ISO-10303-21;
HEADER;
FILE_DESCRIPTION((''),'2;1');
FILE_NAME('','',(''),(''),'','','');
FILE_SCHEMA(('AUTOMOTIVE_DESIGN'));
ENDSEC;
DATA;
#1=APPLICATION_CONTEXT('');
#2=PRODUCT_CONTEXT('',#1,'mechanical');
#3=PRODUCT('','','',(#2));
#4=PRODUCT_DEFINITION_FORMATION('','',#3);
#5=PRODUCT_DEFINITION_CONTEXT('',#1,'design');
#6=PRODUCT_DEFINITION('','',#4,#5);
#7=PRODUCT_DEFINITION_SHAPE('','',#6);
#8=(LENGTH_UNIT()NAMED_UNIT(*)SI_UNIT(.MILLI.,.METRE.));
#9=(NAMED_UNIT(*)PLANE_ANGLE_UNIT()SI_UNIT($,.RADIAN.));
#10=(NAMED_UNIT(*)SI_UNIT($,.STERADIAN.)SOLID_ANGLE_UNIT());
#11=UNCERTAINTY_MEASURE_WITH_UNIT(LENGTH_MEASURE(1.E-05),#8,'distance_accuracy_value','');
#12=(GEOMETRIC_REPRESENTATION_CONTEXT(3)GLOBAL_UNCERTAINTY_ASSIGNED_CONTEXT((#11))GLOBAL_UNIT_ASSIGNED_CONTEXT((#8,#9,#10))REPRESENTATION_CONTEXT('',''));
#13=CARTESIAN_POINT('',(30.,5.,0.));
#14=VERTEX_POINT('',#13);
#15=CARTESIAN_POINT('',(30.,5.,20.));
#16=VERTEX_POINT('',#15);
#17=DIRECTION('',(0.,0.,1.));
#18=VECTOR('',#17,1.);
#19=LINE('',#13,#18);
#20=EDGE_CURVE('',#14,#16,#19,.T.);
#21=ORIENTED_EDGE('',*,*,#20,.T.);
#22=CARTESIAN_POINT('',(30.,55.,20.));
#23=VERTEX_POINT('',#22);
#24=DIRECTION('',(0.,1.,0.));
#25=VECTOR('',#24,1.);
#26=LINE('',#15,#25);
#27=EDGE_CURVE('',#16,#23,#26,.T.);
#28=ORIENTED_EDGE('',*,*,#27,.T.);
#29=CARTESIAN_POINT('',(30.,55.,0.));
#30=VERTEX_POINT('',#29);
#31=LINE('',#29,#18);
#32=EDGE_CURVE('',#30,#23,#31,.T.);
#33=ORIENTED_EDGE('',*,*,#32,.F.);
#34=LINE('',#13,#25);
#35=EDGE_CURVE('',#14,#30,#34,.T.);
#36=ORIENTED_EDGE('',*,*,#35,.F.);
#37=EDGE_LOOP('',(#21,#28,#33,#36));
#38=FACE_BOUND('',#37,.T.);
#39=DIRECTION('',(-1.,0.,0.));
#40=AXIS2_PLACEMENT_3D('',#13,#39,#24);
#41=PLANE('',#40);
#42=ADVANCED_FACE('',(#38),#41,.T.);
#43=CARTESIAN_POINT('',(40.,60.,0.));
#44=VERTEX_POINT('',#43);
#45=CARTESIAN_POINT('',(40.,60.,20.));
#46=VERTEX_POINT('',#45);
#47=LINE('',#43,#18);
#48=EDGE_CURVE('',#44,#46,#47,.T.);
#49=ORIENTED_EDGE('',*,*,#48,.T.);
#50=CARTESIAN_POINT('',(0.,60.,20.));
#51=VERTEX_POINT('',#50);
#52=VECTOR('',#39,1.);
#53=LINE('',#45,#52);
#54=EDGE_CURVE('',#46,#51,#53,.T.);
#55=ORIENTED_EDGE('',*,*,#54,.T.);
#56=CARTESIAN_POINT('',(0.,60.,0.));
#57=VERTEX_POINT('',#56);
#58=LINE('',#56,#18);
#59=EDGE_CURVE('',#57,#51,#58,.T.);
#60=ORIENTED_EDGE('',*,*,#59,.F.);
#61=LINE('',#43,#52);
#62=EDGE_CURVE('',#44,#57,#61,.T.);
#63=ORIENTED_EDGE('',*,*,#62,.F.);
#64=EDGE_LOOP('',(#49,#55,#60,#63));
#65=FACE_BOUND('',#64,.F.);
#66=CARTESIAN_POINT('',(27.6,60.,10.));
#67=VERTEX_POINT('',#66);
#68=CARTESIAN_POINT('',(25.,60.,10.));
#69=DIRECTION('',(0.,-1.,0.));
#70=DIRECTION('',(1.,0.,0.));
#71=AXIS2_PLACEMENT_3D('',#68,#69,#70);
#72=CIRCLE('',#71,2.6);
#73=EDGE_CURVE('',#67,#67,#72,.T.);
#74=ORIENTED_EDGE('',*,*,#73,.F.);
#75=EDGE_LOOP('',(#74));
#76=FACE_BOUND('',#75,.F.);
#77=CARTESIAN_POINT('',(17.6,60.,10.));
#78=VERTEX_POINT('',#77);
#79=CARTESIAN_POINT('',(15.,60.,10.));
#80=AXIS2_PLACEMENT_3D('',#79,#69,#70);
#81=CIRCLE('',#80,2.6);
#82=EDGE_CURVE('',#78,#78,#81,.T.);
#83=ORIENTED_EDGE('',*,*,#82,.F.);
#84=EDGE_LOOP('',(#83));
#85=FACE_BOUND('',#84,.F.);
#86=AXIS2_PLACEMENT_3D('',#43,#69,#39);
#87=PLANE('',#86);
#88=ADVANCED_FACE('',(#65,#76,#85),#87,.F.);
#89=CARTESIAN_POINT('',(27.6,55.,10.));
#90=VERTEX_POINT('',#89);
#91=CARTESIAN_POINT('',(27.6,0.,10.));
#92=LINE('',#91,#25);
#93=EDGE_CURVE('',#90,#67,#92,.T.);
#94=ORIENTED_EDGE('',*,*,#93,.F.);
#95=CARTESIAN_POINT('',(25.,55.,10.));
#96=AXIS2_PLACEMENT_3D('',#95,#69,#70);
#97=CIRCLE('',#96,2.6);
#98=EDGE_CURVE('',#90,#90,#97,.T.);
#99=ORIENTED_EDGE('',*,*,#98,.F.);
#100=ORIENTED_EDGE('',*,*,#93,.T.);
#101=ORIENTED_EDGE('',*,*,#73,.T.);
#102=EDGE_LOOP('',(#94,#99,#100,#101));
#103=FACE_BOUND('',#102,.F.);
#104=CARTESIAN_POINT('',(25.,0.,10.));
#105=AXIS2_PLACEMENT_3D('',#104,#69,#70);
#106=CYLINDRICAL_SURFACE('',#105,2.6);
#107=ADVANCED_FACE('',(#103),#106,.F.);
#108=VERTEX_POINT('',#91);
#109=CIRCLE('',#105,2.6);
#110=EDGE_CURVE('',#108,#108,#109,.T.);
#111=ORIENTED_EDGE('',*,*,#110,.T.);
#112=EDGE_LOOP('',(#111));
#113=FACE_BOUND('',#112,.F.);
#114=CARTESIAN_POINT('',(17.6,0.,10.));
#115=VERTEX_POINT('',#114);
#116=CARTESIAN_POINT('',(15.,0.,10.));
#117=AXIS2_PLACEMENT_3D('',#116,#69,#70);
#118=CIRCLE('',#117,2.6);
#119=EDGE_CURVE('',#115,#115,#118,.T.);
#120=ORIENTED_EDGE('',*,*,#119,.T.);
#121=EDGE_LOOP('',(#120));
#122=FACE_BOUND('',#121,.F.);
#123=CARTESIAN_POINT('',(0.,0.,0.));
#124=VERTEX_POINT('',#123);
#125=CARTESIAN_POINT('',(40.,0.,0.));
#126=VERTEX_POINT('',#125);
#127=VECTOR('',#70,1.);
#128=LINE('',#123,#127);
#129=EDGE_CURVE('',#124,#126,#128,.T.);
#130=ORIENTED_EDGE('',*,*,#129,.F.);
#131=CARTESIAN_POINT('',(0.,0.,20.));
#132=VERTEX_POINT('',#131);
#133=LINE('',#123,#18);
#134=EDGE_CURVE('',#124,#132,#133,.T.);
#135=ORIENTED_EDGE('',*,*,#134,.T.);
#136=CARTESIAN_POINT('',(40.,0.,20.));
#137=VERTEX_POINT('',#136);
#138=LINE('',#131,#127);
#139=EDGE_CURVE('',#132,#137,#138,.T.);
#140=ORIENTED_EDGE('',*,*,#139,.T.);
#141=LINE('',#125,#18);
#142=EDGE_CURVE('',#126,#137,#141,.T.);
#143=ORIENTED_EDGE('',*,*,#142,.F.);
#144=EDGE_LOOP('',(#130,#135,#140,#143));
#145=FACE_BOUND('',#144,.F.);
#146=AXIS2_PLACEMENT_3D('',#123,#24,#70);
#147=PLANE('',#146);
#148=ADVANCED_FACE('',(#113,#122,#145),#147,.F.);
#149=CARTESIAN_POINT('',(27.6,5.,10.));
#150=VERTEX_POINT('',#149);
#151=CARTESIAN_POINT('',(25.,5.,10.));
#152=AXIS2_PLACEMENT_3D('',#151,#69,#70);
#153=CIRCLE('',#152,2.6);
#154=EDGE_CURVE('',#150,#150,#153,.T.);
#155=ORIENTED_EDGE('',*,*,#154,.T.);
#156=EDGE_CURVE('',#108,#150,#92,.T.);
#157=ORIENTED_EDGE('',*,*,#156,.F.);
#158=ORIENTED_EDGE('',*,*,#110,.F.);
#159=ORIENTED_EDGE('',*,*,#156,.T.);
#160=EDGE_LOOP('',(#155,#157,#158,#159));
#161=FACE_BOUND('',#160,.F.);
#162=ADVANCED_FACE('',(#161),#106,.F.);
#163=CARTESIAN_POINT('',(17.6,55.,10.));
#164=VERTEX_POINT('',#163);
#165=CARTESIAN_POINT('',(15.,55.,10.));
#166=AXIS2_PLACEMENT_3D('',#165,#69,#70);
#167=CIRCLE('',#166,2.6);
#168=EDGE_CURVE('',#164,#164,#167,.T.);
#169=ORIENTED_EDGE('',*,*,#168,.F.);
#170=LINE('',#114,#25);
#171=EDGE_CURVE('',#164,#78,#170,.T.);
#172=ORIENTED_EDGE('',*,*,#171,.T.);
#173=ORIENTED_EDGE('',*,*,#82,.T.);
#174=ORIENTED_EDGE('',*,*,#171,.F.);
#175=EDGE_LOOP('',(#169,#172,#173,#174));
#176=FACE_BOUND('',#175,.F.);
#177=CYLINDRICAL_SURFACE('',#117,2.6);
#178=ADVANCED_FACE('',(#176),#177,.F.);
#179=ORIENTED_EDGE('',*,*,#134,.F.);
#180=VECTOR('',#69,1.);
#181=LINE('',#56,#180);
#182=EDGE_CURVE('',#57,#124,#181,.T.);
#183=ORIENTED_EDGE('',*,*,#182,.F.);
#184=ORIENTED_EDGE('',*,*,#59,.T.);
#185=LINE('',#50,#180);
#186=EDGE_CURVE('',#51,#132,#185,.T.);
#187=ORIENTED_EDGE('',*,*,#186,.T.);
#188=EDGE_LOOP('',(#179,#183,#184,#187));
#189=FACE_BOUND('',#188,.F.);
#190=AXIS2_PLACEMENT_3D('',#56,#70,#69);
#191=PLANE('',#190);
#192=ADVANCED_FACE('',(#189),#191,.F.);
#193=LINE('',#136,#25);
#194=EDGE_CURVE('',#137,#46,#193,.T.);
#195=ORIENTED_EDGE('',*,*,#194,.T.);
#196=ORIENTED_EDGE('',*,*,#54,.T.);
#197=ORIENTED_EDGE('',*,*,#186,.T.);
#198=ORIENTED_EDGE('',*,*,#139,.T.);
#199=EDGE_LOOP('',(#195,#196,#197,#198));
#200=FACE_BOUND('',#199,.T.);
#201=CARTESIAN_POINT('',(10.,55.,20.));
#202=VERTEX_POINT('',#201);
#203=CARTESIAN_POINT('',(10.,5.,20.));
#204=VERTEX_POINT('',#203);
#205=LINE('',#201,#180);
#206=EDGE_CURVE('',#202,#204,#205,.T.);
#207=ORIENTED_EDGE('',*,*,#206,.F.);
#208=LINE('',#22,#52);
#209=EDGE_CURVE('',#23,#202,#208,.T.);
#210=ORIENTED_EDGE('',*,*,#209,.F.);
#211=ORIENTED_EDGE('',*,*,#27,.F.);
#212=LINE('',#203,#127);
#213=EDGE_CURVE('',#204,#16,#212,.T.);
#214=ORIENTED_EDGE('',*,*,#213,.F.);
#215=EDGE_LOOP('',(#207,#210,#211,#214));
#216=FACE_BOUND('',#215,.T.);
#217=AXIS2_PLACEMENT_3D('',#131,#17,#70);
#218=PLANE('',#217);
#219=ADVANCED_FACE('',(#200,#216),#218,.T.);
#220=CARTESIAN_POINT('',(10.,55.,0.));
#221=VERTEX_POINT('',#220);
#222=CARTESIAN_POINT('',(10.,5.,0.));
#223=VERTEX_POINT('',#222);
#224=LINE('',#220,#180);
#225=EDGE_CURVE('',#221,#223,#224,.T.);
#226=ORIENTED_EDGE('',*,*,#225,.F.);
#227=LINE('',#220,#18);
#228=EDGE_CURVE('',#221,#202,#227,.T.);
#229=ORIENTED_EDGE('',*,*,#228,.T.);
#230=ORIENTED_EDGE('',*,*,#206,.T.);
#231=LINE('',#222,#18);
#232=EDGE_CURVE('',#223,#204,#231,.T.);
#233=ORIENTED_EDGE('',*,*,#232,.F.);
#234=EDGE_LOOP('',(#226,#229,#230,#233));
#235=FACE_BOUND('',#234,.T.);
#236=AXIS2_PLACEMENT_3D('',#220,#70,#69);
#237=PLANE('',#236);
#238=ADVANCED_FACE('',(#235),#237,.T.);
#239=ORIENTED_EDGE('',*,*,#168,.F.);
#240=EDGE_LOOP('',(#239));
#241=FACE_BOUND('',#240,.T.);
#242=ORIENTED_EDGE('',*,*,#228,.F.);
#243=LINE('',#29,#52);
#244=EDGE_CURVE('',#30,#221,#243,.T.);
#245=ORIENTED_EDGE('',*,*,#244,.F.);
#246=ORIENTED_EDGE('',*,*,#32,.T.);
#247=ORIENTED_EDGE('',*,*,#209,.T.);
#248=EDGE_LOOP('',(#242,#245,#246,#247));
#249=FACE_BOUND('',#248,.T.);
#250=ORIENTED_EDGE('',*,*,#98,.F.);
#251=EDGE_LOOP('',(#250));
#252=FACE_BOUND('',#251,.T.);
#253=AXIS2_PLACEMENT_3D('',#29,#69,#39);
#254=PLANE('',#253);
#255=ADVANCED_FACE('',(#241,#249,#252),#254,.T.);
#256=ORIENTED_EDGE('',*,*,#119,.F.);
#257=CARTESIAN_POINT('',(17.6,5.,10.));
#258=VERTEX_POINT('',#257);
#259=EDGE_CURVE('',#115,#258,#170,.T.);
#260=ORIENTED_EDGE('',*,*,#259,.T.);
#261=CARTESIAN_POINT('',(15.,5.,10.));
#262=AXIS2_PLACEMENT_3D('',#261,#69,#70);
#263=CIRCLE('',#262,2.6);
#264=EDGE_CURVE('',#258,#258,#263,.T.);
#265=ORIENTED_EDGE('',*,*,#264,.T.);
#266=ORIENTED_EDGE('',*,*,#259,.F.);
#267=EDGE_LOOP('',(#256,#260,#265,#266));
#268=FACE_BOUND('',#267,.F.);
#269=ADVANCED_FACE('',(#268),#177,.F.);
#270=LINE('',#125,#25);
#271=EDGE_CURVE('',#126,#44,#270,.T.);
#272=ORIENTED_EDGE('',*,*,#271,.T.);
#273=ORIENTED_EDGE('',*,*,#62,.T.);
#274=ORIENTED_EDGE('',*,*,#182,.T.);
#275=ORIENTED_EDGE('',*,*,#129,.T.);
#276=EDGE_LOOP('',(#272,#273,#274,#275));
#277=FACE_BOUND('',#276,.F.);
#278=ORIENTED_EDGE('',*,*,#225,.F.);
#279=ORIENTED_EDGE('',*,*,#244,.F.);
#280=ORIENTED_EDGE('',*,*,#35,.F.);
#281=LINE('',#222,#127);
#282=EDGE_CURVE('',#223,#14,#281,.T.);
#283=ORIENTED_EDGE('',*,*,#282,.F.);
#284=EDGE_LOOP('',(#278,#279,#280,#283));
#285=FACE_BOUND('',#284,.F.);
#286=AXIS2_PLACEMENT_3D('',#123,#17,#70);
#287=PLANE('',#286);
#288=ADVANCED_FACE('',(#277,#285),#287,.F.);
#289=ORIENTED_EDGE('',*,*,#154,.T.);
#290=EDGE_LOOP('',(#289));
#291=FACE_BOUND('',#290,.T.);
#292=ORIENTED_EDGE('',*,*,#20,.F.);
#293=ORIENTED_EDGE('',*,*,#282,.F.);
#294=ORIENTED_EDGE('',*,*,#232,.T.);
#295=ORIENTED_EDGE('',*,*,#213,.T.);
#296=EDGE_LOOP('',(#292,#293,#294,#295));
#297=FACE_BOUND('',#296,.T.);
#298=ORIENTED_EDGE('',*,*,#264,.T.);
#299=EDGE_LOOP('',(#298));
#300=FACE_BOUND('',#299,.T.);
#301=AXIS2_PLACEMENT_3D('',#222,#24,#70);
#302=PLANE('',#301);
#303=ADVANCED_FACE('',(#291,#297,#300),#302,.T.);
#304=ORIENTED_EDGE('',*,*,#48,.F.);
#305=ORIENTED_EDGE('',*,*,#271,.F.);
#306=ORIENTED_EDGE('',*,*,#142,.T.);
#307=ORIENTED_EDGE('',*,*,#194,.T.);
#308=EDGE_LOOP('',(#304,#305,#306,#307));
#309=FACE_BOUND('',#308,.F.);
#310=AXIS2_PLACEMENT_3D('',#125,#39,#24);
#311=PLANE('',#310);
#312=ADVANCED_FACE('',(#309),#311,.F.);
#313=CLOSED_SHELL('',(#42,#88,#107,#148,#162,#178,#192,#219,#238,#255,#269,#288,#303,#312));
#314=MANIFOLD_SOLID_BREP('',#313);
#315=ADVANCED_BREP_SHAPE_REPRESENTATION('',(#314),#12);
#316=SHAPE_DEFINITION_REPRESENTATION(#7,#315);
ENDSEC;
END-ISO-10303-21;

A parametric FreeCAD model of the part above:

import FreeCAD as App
import Part
import Sketcher
Q = App.Units.Quantity

doc = App.newDocument("Part")
body = doc.addObject("PartDesign::Body", "Body")

# Sketch on XY plane
sketch1 = body.newObject("Sketcher::SketchObject", "Sketch")
sketch1.AttachmentSupport = (doc.getObject("XY_Plane"), [""])
sketch1.MapMode = "FlatFace"
sketch1.addGeometry([
    Part.LineSegment(App.Vector(0, 60, 0), App.Vector(0, 0, 0)),
    Part.LineSegment(App.Vector(0, 0, 0), App.Vector(40, 0, 0)),
    Part.LineSegment(App.Vector(40, 0, 0), App.Vector(40, 60, 0)),
    Part.LineSegment(App.Vector(40, 60, 0), App.Vector(0, 60, 0)),
], False)
sketch1.addConstraint([
    Sketcher.Constraint("Coincident", 0, 2, 1, 1),
    Sketcher.Constraint("Coincident", 1, 2, 2, 1),
    Sketcher.Constraint("Coincident", 2, 2, 3, 1),
    Sketcher.Constraint("Coincident", 3, 2, 0, 1),
    Sketcher.Constraint("Vertical", 0),
    Sketcher.Constraint("Horizontal", 1),
    Sketcher.Constraint("Vertical", 2),
    Sketcher.Constraint("Horizontal", 3),
    Sketcher.Constraint("Coincident", 0, 2, -1, 1),
    Sketcher.Constraint("DistanceX", 1, 1, 1, 2, Q("40 mm")),
    Sketcher.Constraint("DistanceY", 0, 2, 0, 1, Q("60 mm")),
])
pad1 = body.newObject("PartDesign::Pad", "Pad")
pad1.Profile = sketch1
pad1.Length = 20

# Sketch on XY plane
sketch2 = body.newObject("Sketcher::SketchObject", "Sketch001")
sketch2.AttachmentSupport = (doc.getObject("XY_Plane"), [""])
sketch2.MapMode = "FlatFace"
sketch2.addGeometry([
    Part.LineSegment(App.Vector(10, 55, 0), App.Vector(10, 5, 0)),
    Part.LineSegment(App.Vector(10, 5, 0), App.Vector(30, 5, 0)),
    Part.LineSegment(App.Vector(30, 5, 0), App.Vector(30, 55, 0)),
    Part.LineSegment(App.Vector(30, 55, 0), App.Vector(10, 55, 0)),
], False)
sketch2.addConstraint([
    Sketcher.Constraint("Coincident", 0, 2, 1, 1),
    Sketcher.Constraint("Coincident", 1, 2, 2, 1),
    Sketcher.Constraint("Coincident", 2, 2, 3, 1),
    Sketcher.Constraint("Coincident", 3, 2, 0, 1),
    Sketcher.Constraint("Vertical", 0),
    Sketcher.Constraint("Horizontal", 1),
    Sketcher.Constraint("Vertical", 2),
    Sketcher.Constraint("Horizontal", 3),
    Sketcher.Constraint("DistanceX", -1, 1, 0, 2, Q("10 mm")),
    Sketcher.Constraint("DistanceY", -1, 1, 0, 2, Q("5 mm")),
    Sketcher.Constraint("DistanceX", 1, 1, 1, 2, Q("20 mm")),
    Sketcher.Constraint("DistanceY", 0, 2, 0, 1, Q("50 mm")),
])
pocket1 = body.newObject("PartDesign::Pocket", "Pocket")
pocket1.Profile = sketch2
pocket1.Length = 20
pocket1.Reversed = True

# Sketch on XZ plane
sketch3 = body.newObject("Sketcher::SketchObject", "Sketch002")
sketch3.AttachmentSupport = (doc.getObject("XZ_Plane"), [""])
sketch3.MapMode = "FlatFace"
sketch3.addGeometry([
    Part.Circle(App.Vector(15, 10, 0), App.Vector(0, 0, 1), 2.6),
    Part.Circle(App.Vector(25, 10, 0), App.Vector(0, 0, 1), 2.6),
], False)
sketch3.addConstraint([
    Sketcher.Constraint("Equal", 0, 1),
    Sketcher.Constraint("Horizontal", 0, 3, 1, 3),
    Sketcher.Constraint("Diameter", 0, Q("5.2 mm")),
    Sketcher.Constraint("DistanceY", -1, 1, 0, 3, Q("10 mm")),
    Sketcher.Constraint("DistanceX", 0, 3, 1, 3, Q("10 mm")),
    Sketcher.Constraint("DistanceX", -1, 1, 0, 3, Q("15 mm")),
])
pocket2 = body.newObject("PartDesign::Pocket", "Pocket001")
pocket2.Profile = sketch3
pocket2.Type = "ThroughAll"

doc.recompute()
